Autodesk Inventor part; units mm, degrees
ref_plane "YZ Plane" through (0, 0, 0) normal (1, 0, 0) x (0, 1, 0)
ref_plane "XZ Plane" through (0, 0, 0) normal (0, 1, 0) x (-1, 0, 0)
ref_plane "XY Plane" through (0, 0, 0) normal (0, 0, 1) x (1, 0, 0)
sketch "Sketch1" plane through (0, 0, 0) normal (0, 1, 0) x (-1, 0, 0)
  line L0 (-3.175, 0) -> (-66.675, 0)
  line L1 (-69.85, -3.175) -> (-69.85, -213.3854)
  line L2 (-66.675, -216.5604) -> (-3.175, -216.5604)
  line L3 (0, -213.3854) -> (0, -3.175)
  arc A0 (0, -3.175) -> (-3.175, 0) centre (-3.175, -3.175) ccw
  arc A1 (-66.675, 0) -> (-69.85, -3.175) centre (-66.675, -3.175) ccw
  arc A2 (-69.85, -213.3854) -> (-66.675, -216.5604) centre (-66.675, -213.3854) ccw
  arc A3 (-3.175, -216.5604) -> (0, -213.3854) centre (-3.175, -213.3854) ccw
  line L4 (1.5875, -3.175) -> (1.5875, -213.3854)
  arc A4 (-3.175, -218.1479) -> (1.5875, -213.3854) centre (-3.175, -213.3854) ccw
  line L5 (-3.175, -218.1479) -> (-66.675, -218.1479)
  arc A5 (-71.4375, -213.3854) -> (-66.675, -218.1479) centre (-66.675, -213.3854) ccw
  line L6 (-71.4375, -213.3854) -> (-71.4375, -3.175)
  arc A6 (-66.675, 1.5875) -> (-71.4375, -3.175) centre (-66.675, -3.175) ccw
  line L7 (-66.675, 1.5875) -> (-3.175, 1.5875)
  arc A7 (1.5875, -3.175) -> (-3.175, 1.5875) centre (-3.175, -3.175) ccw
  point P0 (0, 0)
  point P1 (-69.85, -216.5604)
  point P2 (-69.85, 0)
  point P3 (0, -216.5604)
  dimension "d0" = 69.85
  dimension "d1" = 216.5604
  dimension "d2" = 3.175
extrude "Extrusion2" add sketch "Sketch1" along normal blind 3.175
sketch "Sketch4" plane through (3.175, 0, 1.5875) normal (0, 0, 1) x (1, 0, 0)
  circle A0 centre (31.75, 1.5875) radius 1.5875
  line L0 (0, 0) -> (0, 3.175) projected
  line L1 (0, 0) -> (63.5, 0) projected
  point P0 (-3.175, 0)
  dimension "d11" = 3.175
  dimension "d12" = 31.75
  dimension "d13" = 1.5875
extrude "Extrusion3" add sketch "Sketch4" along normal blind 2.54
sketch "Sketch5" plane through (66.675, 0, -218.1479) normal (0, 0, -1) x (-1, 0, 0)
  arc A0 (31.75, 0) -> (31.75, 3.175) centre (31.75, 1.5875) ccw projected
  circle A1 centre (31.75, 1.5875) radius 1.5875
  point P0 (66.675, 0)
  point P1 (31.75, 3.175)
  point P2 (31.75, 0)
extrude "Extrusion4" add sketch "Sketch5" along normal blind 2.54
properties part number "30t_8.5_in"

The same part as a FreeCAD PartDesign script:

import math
import FreeCAD as App
import Part
import Sketcher
from FreeCAD import Vector
Q = App.Units.Quantity

doc = App.newDocument("Part")
body = doc.addObject("PartDesign::Body", "Body")

# Sketch on XZ plane
sketch1 = body.newObject("Sketcher::SketchObject", "Sketch")
sketch1.AttachmentSupport = (doc.getObject("XZ_Plane"), [""])
sketch1.MapMode = "FlatFace"
sketch1.addGeometry(Part.LineSegment(Vector(-1.6, -213.4, 0), Vector(-1.6, -3.2, 0)), False)
sketch1.addGeometry(Part.ArcOfCircle(Part.Circle(Vector(3.2, -3.2, 0), Vector(0, 0, 1), 4.8), math.radians(90), math.radians(180)), False)
sketch1.addGeometry(Part.LineSegment(Vector(3.2, 1.6, 0), Vector(66.7, 1.6, 0)), False)
sketch1.addGeometry(Part.ArcOfCircle(Part.Circle(Vector(66.7, -3.2, 0), Vector(0, 0, 1), 4.8), math.radians(0), math.radians(90)), False)
sketch1.addGeometry(Part.LineSegment(Vector(71.4, -3.2, 0), Vector(71.4, -213.4, 0)), False)
sketch1.addGeometry(Part.ArcOfCircle(Part.Circle(Vector(66.7, -213.4, 0), Vector(0, 0, 1), 4.8), math.radians(-90), math.radians(0)), False)
sketch1.addGeometry(Part.LineSegment(Vector(66.7, -218.1, 0), Vector(3.2, -218.1, 0)), False)
sketch1.addGeometry(Part.ArcOfCircle(Part.Circle(Vector(3.2, -213.4, 0), Vector(0, 0, 1), 4.8), math.radians(180), math.radians(270)), False)
sketch1.addGeometry(Part.LineSegment(Vector(66.7, 0, 0), Vector(3.2, 0, 0)), False)
sketch1.addGeometry(Part.ArcOfCircle(Part.Circle(Vector(3.2, -3.2, 0), Vector(0, 0, 1), 3.2), math.radians(90), math.radians(180)), False)
sketch1.addGeometry(Part.LineSegment(Vector(0, -3.2, 0), Vector(0, -213.4, 0)), False)
sketch1.addGeometry(Part.ArcOfCircle(Part.Circle(Vector(3.2, -213.4, 0), Vector(0, 0, 1), 3.2), math.radians(180), math.radians(270)), False)
sketch1.addGeometry(Part.LineSegment(Vector(3.2, -216.6, 0), Vector(66.7, -216.6, 0)), False)
sketch1.addGeometry(Part.ArcOfCircle(Part.Circle(Vector(66.7, -213.4, 0), Vector(0, 0, 1), 3.2), math.radians(-90), math.radians(0)), False)
sketch1.addGeometry(Part.LineSegment(Vector(69.8, -213.4, 0), Vector(69.8, -3.2, 0)), False)
sketch1.addGeometry(Part.ArcOfCircle(Part.Circle(Vector(66.7, -3.2, 0), Vector(0, 0, 1), 3.2), math.radians(0), math.radians(90)), False)
sketch1.addConstraint(Sketcher.Constraint("Tangent", 0, 2, 1, 2))
sketch1.addConstraint(Sketcher.Constraint("Tangent", 1, 1, 2, 1))
sketch1.addConstraint(Sketcher.Constraint("Tangent", 2, 2, 3, 2))
sketch1.addConstraint(Sketcher.Constraint("Tangent", 3, 1, 4, 1))
sketch1.addConstraint(Sketcher.Constraint("Tangent", 4, 2, 5, 2))
sketch1.addConstraint(Sketcher.Constraint("Tangent", 5, 1, 6, 1))
sketch1.addConstraint(Sketcher.Constraint("Tangent", 6, 2, 7, 2))
sketch1.addConstraint(Sketcher.Constraint("Tangent", 7, 1, 0, 1))
sketch1.addConstraint(Sketcher.Constraint("Tangent", 8, 2, 9, 1))
sketch1.addConstraint(Sketcher.Constraint("Tangent", 9, 2, 10, 1))
sketch1.addConstraint(Sketcher.Constraint("Tangent", 10, 2, 11, 1))
sketch1.addConstraint(Sketcher.Constraint("Tangent", 11, 2, 12, 1))
sketch1.addConstraint(Sketcher.Constraint("Tangent", 12, 2, 13, 1))
sketch1.addConstraint(Sketcher.Constraint("Tangent", 13, 2, 14, 1))
sketch1.addConstraint(Sketcher.Constraint("Tangent", 14, 2, 15, 1))
sketch1.addConstraint(Sketcher.Constraint("Tangent", 15, 2, 8, 1))
sketch1.addConstraint(Sketcher.Constraint("Vertical", 0))
sketch1.addConstraint(Sketcher.Constraint("Horizontal", 2))
sketch1.addConstraint(Sketcher.Constraint("Vertical", 4))
sketch1.addConstraint(Sketcher.Constraint("Horizontal", 6))
sketch1.addConstraint(Sketcher.Constraint("Horizontal", 8))
sketch1.addConstraint(Sketcher.Constraint("Vertical", 10))
sketch1.addConstraint(Sketcher.Constraint("Horizontal", 12))
sketch1.addConstraint(Sketcher.Constraint("Vertical", 14))
sketch1.addConstraint(Sketcher.Constraint("Coincident", 9, 3, 1, 3))
sketch1.addConstraint(Sketcher.Constraint("Coincident", 11, 3, 7, 3))
sketch1.addConstraint(Sketcher.Constraint("Coincident", 13, 3, 5, 3))
sketch1.addConstraint(Sketcher.Constraint("Equal", 1, 3))
sketch1.addConstraint(Sketcher.Constraint("Equal", 3, 5))
sketch1.addConstraint(Sketcher.Constraint("Equal", 5, 7))
sketch1.addConstraint(Sketcher.Constraint("Equal", 13, 15))
sketch1.addConstraint(Sketcher.Constraint("PointOnObject", 8, 2, -1))
sketch1.addConstraint(Sketcher.Constraint("PointOnObject", 9, 2, -2))
sketch1.addConstraint(Sketcher.Constraint("Radius", 9, Q("0.125 in")))
sketch1.addConstraint(Sketcher.Constraint("DistanceX", -1, 1, 13, 2, Q("2.75 in")))
sketch1.addConstraint(Sketcher.Constraint("DistanceY", 11, 2, -1, 1, Q("8.526 in")))
sketch1.addConstraint(Sketcher.Constraint("Radius", 1, Q("0.1875 in")))
pad1 = body.newObject("PartDesign::Pad", "Pad")
pad1.Profile = sketch1
pad1.Length = Q("0.125 in")
pad1.Reversed = True

# Sketch on XY plane
sketch2 = body.newObject("Sketcher::SketchObject", "Sketch001")
sketch2.AttachmentSupport = (doc.getObject("XY_Plane"), [""])
sketch2.MapMode = "FlatFace"
sketch2.AttachmentOffset = App.Placement(Vector(0, 0, 0.0625 * 25.4), App.Rotation())
sketch2.addGeometry(Part.Circle(Vector(34.9, 1.6, 0), Vector(0, 0, 1), 1.6), False)
sketch2.addConstraint(Sketcher.Constraint("Diameter", 0, Q("0.125 in")))
sketch2.addConstraint(Sketcher.Constraint("DistanceY", -1, 1, 0, 3, Q("0.0625 in")))
sketch2.addConstraint(Sketcher.Constraint("DistanceX", -1, 1, 0, 3, Q("1.375 in")))
pad2 = body.newObject("PartDesign::Pad", "Pad001")
pad2.Profile = sketch2
pad2.Length = Q("0.1 in")

# Sketch on XY plane
sketch3 = body.newObject("Sketcher::SketchObject", "Sketch002")
sketch3.AttachmentSupport = (doc.getObject("XY_Plane"), [""])
sketch3.MapMode = "FlatFace"
sketch3.AttachmentOffset = App.Placement(Vector(0, 0, -8.5885 * 25.4), App.Rotation())
sketch3.addGeometry(Part.Circle(Vector(34.9, 1.6, 0), Vector(0, 0, 1), 1.6), False)
sketch3.addConstraint(Sketcher.Constraint("Diameter", 0, Q("0.125 in")))
sketch3.addConstraint(Sketcher.Constraint("DistanceX", -1, 1, 0, 3, Q("1.375 in")))
sketch3.addConstraint(Sketcher.Constraint("DistanceY", -1, 1, 0, 3, Q("0.0625 in")))
pad3 = body.newObject("PartDesign::Pad", "Pad002")
pad3.Profile = sketch3
pad3.Length = Q("0.1 in")
pad3.Reversed = True

doc.recompute()
